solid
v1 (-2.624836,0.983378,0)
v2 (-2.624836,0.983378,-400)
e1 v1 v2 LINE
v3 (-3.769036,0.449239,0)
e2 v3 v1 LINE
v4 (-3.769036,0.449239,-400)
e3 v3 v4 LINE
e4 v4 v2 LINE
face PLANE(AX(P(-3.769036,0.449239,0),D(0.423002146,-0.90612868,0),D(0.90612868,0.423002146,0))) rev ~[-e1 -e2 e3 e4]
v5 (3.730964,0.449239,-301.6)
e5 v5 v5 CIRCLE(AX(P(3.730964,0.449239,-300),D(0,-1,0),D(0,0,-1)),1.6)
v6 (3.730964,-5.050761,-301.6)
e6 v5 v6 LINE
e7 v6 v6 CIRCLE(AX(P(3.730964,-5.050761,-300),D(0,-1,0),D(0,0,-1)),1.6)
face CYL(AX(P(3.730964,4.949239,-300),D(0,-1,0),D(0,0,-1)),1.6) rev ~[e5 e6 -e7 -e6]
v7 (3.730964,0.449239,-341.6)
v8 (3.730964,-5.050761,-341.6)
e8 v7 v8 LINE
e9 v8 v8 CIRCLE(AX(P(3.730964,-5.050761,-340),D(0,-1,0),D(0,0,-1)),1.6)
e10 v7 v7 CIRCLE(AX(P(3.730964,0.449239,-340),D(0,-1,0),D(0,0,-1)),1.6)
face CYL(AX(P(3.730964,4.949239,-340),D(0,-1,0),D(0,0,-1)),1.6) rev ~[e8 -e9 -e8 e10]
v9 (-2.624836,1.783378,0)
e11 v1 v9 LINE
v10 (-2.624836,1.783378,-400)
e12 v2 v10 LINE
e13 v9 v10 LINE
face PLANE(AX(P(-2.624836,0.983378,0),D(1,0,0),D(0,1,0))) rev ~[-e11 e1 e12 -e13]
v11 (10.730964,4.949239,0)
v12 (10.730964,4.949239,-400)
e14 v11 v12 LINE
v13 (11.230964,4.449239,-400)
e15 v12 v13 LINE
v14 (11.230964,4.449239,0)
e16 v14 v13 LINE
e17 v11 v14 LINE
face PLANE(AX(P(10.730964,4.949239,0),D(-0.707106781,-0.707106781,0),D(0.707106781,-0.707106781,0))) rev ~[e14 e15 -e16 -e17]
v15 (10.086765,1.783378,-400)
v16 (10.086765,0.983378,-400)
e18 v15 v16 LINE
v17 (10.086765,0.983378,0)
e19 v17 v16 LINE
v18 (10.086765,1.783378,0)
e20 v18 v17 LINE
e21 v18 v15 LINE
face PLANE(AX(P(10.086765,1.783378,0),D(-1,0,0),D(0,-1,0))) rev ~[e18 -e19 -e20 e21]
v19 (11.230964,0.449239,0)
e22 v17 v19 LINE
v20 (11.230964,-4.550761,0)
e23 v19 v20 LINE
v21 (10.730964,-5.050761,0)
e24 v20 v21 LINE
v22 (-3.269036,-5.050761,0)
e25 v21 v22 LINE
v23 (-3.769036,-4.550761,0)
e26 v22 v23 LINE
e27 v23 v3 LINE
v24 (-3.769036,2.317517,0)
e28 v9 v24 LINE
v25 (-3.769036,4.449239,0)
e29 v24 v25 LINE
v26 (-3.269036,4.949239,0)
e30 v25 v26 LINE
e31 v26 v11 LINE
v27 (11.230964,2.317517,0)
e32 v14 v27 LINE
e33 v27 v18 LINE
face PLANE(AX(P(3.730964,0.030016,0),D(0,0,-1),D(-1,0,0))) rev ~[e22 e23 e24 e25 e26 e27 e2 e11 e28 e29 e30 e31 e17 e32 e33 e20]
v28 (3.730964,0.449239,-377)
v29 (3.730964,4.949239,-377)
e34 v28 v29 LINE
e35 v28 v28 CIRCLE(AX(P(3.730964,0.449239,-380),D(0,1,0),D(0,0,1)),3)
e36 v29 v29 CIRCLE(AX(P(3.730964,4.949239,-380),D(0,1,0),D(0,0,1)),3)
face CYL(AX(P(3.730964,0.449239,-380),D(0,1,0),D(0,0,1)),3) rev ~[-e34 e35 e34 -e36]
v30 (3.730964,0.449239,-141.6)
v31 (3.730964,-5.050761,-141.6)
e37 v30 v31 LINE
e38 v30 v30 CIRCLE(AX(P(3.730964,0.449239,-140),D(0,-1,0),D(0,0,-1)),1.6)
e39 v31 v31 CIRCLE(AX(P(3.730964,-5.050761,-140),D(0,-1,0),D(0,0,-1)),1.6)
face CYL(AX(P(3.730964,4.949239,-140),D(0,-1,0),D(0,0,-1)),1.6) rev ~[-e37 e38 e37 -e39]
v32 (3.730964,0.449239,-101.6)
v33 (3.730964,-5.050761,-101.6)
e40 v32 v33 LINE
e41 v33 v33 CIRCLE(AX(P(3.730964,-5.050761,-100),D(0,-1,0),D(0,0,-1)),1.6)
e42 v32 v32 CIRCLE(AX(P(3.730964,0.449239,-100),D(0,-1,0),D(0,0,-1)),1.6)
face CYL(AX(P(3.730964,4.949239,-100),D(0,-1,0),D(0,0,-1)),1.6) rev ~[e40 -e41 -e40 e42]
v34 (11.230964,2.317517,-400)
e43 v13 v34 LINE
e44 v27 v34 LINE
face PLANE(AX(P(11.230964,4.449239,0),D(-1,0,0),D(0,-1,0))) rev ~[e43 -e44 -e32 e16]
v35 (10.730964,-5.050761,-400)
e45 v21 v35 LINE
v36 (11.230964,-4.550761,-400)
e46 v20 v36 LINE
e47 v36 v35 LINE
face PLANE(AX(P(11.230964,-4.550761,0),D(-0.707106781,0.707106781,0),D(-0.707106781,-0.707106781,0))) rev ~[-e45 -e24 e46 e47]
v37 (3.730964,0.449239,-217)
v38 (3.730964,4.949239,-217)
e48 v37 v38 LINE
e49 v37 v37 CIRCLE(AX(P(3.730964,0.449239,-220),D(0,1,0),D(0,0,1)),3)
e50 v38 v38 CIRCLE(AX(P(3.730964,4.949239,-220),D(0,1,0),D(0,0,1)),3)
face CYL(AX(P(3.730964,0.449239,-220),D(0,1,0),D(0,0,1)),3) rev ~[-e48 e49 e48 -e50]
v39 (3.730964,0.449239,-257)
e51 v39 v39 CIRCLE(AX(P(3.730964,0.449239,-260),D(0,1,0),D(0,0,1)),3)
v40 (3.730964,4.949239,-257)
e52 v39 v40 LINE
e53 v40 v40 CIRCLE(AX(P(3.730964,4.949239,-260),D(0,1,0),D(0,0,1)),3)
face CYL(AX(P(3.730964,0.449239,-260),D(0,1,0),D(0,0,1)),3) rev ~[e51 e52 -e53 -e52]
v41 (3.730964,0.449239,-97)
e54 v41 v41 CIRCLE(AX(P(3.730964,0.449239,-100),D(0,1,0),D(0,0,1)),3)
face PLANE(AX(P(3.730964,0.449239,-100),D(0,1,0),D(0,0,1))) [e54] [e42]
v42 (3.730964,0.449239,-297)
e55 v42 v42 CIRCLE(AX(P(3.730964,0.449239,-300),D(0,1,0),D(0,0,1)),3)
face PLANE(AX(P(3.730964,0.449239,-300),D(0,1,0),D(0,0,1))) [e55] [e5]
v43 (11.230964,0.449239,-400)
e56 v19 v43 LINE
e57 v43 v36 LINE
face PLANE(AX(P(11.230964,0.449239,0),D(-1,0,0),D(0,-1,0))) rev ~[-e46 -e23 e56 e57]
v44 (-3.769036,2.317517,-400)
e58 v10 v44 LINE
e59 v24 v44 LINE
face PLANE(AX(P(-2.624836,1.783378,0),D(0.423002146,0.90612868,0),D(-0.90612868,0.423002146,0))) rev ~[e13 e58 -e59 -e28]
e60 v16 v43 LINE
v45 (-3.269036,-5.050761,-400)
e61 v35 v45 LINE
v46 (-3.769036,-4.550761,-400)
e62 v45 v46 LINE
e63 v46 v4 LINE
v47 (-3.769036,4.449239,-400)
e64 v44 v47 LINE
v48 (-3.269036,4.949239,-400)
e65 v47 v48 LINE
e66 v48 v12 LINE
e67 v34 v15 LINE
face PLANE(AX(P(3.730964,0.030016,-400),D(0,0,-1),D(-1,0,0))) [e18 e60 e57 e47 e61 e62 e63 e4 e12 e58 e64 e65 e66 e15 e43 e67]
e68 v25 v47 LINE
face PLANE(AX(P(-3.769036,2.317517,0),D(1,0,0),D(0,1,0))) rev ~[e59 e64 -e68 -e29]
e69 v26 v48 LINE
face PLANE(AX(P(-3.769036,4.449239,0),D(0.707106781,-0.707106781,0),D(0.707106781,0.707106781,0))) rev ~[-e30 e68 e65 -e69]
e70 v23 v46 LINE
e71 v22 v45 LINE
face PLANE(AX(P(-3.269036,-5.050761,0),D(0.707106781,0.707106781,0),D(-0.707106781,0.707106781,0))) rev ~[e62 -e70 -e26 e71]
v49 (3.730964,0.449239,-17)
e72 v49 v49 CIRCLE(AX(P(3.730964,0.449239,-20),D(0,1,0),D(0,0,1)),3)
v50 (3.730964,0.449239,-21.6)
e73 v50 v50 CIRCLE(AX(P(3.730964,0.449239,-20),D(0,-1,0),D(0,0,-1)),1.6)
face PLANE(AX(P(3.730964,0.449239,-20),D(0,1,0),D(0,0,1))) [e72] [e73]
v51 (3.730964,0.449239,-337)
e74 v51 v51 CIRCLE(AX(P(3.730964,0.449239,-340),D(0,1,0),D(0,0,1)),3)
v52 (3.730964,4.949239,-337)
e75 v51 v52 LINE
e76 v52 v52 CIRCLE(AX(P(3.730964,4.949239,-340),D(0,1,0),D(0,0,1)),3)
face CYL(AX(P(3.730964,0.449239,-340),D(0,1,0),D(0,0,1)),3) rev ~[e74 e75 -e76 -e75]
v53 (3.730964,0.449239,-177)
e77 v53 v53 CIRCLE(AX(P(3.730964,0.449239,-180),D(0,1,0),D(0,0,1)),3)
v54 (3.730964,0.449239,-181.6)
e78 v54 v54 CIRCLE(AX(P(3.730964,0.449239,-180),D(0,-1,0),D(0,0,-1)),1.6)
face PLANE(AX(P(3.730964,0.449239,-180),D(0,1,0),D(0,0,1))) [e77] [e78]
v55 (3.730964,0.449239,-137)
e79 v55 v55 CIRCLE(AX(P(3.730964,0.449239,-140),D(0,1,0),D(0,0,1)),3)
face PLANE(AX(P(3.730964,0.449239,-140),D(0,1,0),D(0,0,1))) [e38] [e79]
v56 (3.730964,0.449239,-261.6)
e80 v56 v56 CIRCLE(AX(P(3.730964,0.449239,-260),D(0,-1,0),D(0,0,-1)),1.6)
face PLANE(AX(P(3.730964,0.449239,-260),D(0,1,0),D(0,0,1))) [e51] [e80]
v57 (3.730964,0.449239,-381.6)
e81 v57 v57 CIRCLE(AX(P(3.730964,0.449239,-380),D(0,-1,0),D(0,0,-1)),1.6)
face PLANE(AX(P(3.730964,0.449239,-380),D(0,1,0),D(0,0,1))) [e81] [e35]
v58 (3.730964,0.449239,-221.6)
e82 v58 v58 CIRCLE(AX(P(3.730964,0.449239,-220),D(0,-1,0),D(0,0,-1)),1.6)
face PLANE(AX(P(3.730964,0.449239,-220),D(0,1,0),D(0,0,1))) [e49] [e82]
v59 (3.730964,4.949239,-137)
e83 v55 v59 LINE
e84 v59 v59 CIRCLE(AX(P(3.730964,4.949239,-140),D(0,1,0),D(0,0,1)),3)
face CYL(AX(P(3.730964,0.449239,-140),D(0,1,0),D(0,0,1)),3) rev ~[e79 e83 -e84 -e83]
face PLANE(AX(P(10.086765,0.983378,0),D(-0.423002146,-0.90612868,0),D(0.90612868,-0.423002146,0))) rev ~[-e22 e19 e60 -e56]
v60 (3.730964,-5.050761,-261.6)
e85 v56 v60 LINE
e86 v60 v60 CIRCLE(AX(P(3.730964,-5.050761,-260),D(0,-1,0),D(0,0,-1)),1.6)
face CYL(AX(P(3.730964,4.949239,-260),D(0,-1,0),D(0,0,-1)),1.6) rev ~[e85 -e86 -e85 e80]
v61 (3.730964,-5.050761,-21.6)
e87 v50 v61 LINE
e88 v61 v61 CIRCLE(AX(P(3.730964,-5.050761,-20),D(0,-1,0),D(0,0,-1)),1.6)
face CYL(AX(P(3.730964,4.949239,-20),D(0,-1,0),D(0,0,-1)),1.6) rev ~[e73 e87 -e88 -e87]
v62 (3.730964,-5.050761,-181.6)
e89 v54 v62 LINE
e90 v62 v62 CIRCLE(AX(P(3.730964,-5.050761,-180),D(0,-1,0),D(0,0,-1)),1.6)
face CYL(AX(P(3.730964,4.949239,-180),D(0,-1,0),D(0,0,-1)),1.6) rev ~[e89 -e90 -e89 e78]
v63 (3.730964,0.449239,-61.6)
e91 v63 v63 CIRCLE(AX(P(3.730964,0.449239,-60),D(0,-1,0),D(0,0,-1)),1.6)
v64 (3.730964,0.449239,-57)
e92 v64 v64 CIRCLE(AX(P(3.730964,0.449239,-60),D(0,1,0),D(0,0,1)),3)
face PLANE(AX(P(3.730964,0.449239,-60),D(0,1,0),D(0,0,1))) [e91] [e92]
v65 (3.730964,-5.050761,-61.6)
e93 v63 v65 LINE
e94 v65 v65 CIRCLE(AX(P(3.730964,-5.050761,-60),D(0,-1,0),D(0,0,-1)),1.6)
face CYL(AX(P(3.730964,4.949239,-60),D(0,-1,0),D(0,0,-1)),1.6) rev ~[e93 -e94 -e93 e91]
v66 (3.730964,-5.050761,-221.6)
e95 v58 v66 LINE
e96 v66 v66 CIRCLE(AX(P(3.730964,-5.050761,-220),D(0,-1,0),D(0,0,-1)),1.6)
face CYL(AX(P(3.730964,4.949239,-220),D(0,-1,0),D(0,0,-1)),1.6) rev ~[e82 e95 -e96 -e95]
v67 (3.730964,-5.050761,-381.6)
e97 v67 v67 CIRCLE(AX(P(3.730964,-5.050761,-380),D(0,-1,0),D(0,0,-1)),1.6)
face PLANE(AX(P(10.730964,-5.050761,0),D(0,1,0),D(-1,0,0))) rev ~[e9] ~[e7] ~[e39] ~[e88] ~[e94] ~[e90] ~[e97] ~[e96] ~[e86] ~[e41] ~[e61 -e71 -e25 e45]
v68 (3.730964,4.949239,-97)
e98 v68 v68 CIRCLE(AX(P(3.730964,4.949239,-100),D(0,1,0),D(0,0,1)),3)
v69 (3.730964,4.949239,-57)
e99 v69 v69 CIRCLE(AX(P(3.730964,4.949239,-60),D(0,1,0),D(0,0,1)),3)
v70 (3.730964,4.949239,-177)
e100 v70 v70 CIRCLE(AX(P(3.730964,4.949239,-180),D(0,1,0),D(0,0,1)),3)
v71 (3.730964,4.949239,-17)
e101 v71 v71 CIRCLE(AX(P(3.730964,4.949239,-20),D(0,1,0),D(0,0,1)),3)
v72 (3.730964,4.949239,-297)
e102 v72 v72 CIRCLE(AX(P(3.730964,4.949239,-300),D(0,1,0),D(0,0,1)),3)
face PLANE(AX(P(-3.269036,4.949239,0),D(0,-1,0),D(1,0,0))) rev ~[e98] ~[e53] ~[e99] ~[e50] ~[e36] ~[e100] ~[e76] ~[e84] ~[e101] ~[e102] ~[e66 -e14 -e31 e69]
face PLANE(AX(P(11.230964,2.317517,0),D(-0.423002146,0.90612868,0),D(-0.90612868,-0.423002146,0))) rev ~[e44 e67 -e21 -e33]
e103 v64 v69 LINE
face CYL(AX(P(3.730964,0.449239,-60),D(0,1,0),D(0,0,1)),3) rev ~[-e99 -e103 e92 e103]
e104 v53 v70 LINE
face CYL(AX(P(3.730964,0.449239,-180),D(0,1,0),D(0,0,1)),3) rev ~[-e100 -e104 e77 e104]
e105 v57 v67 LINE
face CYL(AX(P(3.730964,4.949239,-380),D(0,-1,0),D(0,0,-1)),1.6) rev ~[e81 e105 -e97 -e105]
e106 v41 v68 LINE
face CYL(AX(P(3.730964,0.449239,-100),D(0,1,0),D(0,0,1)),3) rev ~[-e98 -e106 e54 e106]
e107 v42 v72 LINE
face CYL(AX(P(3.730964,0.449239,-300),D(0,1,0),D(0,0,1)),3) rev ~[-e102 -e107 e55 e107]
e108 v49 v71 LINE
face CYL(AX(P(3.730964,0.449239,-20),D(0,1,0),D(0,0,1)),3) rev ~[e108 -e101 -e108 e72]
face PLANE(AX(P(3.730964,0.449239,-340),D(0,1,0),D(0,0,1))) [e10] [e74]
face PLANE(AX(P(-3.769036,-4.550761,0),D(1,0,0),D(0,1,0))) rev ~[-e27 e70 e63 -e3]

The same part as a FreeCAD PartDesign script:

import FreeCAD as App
import Part
import Sketcher


def add_polygon(sketch, points):
    """Adds a closed chain of lines whose ends are joined by coincident constraints."""
    first, n = sketch.GeometryCount, len(points)
    for a, b in zip(points, points[1:] + points[:1]):
        sketch.addGeometry(Part.LineSegment(App.Vector(*a, 0), App.Vector(*b, 0)), False)
    for i in range(n):
        sketch.addConstraint(Sketcher.Constraint("Coincident", first + i, 2, first + (i + 1) % n, 1))

doc = App.newDocument("Part")
body = doc.addObject("PartDesign::Body", "Body")

# Sketch on XY plane
sketch1 = body.newObject("Sketcher::SketchObject", "Sketch")
sketch1.AttachmentSupport = (doc.getObject("XY_Plane"), [""])
sketch1.MapMode = "FlatFace"
add_polygon(sketch1, [(10.730964, 4.949239), (-3.269036, 4.949239), (-3.769036, 4.449239), (-3.769036, 2.317517), (-2.624836, 1.783378), (-2.624836, 0.983378), (-3.769036, 0.449239), (-3.769036, -4.550761), (-3.269036, -5.050761), (10.730964, -5.050761), (11.230964, -4.550761), (11.230964, 0.449239), (10.086765, 0.983378), (10.086765, 1.783378), (11.230964, 2.317517), (11.230964, 4.449239)])  # lines 0-15
sketch1.addConstraint([
    Sketcher.Constraint("Horizontal", 0),
    Sketcher.Constraint("Vertical", 2),
    Sketcher.Constraint("Vertical", 4),
    Sketcher.Constraint("Vertical", 6),
    Sketcher.Constraint("Horizontal", 8),
    Sketcher.Constraint("Vertical", 10),
    Sketcher.Constraint("Vertical", 12),
    Sketcher.Constraint("Vertical", 14),
    Sketcher.Constraint("Perpendicular", 1, 7),
    Sketcher.Constraint("Perpendicular", 7, 9),
    Sketcher.Constraint("Parallel", 3, 11),
    Sketcher.Constraint("Parallel", 5, 13),
    Sketcher.Constraint("Perpendicular", 9, 15),
    Sketcher.Constraint("Horizontal", 6, 2, 9, 2),
    Sketcher.Constraint("Horizontal", 5, 2, 10, 2),
    Sketcher.Constraint("Horizontal", 4, 2, 11, 2),
    Sketcher.Constraint("Horizontal", 3, 2, 12, 2),
    Sketcher.Constraint("Horizontal", 2, 2, 13, 2),
    Sketcher.Constraint("Horizontal", 1, 2, 14, 2),
    Sketcher.Constraint("Vertical", 2, 2, 5, 2),
    Sketcher.Constraint("Vertical", 0, 2, 7, 2),
    Sketcher.Constraint("Vertical", 10, 2, 13, 2),
    Sketcher.Constraint("Vertical", 8, 2, 15, 2),
    Sketcher.Constraint("DistanceX", 0, 2, 0, 1, 14.0),
    Sketcher.Constraint("DistanceY", 6, 2, 6, 1, 5.0),
    Sketcher.Constraint("DistanceY", 4, 2, 4, 1, 0.8),
    Sketcher.Constraint("DistanceY", 5, 2, 1, 2, 4.0),
    Sketcher.Constraint("DistanceX", 6, 2, 9, 2, 15.0),
    Sketcher.Constraint("DistanceY", 2, 2, 2, 1, 2.131721),
    Sketcher.Constraint("DistanceX", 2, 2, 3, 2, 1.1442),
    Sketcher.Constraint("DistanceY", -1, 1, 0, 2, 4.949239),
    Sketcher.Constraint("DistanceX", 0, 2, -1, 1, 3.269036),
])
pad1 = body.newObject("PartDesign::Pad", "Pad")
pad1.Profile = sketch1
pad1.Length = 400
pad1.Reversed = True

# Sketch on XZ plane
sketch2 = body.newObject("Sketcher::SketchObject", "Sketch001")
sketch2.AttachmentSupport = (doc.getObject("XZ_Plane"), [""])
sketch2.MapMode = "FlatFace"
sketch2.AttachmentOffset = App.Placement(App.Vector(0, 0, -4.949239), App.Rotation())
sketch2.addGeometry([
    Part.Circle(App.Vector(3.730964, -380, 0), App.Vector(0, 0, 1), 1.6),  # 0
    Part.Circle(App.Vector(3.730964, -340, 0), App.Vector(0, 0, 1), 1.6),  # 1
    Part.Circle(App.Vector(3.730964, -300, 0), App.Vector(0, 0, 1), 1.6),  # 2
    Part.Circle(App.Vector(3.730964, -260, 0), App.Vector(0, 0, 1), 1.6),  # 3
    Part.Circle(App.Vector(3.730964, -220, 0), App.Vector(0, 0, 1), 1.6),  # 4
    Part.Circle(App.Vector(3.730964, -180, 0), App.Vector(0, 0, 1), 1.6),  # 5
    Part.Circle(App.Vector(3.730964, -140, 0), App.Vector(0, 0, 1), 1.6),  # 6
    Part.Circle(App.Vector(3.730964, -100, 0), App.Vector(0, 0, 1), 1.6),  # 7
    Part.Circle(App.Vector(3.730964, -60, 0), App.Vector(0, 0, 1), 1.6),  # 8
    Part.Circle(App.Vector(3.730964, -20, 0), App.Vector(0, 0, 1), 1.6),  # 9
], False)
sketch2.addConstraint([
    Sketcher.Constraint("Equal", 0, 1),
    Sketcher.Constraint("Equal", 1, 2),
    Sketcher.Constraint("Equal", 2, 3),
    Sketcher.Constraint("Equal", 3, 4),
    Sketcher.Constraint("Equal", 4, 5),
    Sketcher.Constraint("Equal", 5, 6),
    Sketcher.Constraint("Equal", 6, 7),
    Sketcher.Constraint("Equal", 7, 8),
    Sketcher.Constraint("Equal", 8, 9),
    Sketcher.Constraint("Vertical", 0, 3, 1, 3),
    Sketcher.Constraint("Vertical", 1, 3, 2, 3),
    Sketcher.Constraint("Vertical", 2, 3, 3, 3),
    Sketcher.Constraint("Vertical", 3, 3, 4, 3),
    Sketcher.Constraint("Vertical", 4, 3, 5, 3),
    Sketcher.Constraint("Vertical", 5, 3, 6, 3),
    Sketcher.Constraint("Vertical", 6, 3, 7, 3),
    Sketcher.Constraint("Vertical", 7, 3, 8, 3),
    Sketcher.Constraint("Vertical", 8, 3, 9, 3),
    Sketcher.Constraint("Diameter", 0, 3.2),
    Sketcher.Constraint("DistanceY", 0, 3, -1, 1, 380.0),
    Sketcher.Constraint("DistanceY", 1, 3, -1, 1, 340.0),
    Sketcher.Constraint("DistanceY", 2, 3, -1, 1, 300.0),
    Sketcher.Constraint("DistanceY", 3, 3, -1, 1, 260.0),
    Sketcher.Constraint("DistanceY", 4, 3, -1, 1, 220.0),
    Sketcher.Constraint("DistanceY", 5, 3, -1, 1, 180.0),
    Sketcher.Constraint("DistanceY", 6, 3, -1, 1, 140.0),
    Sketcher.Constraint("DistanceY", 7, 3, -1, 1, 100.0),
    Sketcher.Constraint("DistanceY", 8, 3, -1, 1, 60.0),
    Sketcher.Constraint("DistanceY", 9, 3, -1, 1, 20.0),
    Sketcher.Constraint("DistanceX", -1, 1, 0, 3, 3.730964),
])
doc.recompute()
hole = body.newObject("PartDesign::Hole", "Hole")
hole.Profile = sketch2
hole.ThreadType = "None"
hole.Diameter = 3.2
hole.DepthType = "ThroughAll"
hole.HoleCutType = "Counterbore"
hole.HoleCutDiameter = 6
hole.HoleCutDepth = 4.5
hole.Reversed = True

doc.recompute()
